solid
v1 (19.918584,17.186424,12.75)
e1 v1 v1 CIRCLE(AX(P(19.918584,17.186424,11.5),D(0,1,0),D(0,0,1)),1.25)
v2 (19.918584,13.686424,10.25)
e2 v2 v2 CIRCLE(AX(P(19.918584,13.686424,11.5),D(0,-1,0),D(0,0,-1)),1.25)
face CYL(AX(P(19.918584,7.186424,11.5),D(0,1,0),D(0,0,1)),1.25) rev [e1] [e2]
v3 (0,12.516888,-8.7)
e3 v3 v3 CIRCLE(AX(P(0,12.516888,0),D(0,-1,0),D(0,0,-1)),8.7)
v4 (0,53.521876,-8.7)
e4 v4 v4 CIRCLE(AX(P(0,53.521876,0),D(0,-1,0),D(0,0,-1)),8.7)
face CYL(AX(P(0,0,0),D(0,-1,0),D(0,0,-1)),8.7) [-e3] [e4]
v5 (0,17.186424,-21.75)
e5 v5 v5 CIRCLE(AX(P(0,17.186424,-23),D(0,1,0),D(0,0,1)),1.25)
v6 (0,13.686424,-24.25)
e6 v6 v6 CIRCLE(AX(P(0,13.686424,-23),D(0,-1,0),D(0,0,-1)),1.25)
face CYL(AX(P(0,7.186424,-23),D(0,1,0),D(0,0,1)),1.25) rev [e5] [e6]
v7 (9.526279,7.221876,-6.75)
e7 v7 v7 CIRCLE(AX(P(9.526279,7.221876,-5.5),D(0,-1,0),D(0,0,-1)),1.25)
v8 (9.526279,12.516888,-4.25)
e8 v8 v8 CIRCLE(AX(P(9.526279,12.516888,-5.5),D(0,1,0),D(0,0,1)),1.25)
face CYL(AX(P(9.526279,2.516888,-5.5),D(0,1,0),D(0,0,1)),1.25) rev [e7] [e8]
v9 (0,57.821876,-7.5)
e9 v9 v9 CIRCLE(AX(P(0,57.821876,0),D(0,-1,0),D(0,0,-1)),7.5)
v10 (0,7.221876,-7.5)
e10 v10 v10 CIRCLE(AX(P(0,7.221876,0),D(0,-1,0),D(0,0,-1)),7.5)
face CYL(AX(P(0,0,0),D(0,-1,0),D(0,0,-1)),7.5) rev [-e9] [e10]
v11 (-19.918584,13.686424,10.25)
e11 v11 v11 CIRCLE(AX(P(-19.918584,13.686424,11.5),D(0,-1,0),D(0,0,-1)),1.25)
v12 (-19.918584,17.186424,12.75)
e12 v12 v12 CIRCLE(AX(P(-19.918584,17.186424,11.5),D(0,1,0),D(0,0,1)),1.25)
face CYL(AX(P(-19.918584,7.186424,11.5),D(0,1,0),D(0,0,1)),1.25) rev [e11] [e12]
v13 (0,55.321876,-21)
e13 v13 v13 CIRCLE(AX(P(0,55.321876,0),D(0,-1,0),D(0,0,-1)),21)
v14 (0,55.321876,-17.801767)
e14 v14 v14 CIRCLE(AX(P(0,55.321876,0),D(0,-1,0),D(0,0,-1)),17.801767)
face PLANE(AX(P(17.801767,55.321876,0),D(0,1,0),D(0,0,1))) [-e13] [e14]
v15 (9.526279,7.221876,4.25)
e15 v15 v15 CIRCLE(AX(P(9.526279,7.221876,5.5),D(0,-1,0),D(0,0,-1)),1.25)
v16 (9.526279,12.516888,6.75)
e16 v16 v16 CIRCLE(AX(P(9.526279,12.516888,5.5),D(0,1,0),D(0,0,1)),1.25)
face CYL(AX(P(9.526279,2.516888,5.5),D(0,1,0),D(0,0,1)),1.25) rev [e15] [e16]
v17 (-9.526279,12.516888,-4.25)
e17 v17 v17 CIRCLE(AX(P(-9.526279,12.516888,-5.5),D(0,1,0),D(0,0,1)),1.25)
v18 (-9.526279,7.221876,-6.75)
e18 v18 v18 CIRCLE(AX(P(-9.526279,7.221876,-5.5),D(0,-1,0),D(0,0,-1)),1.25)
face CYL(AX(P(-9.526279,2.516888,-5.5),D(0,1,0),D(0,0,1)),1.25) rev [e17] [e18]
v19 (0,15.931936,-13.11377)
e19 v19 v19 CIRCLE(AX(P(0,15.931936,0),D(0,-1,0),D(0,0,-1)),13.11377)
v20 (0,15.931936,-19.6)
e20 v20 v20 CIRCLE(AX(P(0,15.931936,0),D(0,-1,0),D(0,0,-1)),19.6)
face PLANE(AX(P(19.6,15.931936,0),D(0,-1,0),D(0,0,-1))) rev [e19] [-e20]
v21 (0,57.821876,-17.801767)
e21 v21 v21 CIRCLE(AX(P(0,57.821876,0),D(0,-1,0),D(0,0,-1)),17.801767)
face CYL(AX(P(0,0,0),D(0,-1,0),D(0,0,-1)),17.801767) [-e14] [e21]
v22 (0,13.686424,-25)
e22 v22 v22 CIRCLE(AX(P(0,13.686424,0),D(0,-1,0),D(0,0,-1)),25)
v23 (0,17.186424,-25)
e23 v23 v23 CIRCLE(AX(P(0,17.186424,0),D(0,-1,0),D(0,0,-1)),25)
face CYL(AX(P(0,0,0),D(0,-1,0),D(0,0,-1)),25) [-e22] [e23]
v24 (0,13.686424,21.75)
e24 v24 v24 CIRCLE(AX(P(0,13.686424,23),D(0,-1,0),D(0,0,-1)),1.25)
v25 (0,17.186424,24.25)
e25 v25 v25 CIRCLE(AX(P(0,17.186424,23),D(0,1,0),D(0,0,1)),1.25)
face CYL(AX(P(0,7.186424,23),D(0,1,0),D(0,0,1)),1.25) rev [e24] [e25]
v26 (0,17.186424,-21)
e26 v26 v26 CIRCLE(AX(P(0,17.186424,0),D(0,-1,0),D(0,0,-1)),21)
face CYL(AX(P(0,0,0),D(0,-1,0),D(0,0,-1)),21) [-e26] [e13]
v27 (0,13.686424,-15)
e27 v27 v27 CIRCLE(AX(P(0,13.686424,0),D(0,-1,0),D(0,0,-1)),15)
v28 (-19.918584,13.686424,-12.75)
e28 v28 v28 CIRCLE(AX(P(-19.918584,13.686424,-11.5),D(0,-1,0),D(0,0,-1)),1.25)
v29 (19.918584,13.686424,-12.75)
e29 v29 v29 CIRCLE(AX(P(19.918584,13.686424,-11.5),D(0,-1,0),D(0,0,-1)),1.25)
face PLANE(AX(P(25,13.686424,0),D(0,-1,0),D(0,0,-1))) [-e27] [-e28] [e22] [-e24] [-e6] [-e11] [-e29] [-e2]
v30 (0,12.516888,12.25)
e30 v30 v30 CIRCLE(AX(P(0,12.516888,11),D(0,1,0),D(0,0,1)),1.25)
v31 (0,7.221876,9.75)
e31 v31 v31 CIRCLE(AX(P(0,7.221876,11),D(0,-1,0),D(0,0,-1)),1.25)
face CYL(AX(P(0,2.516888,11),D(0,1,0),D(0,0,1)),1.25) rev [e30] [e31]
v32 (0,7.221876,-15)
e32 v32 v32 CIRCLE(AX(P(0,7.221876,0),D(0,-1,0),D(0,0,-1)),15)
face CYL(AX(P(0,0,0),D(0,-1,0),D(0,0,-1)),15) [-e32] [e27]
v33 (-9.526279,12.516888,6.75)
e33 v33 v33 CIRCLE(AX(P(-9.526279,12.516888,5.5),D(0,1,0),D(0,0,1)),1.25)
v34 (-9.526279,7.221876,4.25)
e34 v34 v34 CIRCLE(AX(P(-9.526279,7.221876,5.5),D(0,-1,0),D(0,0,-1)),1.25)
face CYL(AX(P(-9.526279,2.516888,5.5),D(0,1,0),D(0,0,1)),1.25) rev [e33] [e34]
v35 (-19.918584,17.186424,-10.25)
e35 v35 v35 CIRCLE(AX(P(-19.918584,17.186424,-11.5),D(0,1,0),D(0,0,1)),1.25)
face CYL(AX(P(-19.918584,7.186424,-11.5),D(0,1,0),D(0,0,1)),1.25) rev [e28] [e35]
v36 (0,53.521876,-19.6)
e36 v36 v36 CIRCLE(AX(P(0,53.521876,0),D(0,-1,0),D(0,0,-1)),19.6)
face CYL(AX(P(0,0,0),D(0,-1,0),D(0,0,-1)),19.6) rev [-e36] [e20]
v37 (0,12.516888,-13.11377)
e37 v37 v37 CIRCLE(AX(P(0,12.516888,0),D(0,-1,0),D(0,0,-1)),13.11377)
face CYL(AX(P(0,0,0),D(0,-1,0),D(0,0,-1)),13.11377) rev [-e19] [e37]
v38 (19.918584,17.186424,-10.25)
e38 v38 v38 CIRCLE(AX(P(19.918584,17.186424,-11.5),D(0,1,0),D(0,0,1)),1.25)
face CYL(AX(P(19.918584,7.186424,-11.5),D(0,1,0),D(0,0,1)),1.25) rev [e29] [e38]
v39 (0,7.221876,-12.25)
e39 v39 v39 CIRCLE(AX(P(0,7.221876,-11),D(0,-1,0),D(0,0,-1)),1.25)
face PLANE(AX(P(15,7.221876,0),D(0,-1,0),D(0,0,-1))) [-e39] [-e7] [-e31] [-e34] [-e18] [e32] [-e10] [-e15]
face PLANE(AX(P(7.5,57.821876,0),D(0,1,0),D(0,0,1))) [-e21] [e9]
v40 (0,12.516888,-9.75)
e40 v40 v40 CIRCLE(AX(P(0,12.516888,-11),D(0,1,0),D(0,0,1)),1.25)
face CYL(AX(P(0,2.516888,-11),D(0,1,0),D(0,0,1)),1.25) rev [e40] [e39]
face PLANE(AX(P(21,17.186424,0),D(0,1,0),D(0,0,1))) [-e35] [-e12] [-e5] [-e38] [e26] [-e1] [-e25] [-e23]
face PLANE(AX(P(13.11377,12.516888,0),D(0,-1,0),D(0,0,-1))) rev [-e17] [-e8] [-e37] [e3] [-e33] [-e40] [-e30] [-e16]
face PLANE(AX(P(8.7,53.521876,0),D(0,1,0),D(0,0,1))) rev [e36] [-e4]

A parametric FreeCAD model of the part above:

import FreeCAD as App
import Part
import Sketcher
Q = App.Units.Quantity

doc = App.newDocument("Part")
params = doc.addObject("Spreadsheet::Sheet", "Params")
for row, (alias, value) in enumerate([
    ("sketch1_width", "10 mm"),
    ("sketch1_width2", "4 mm"),
    ("sketch1_width3", "7.5 mm"),
    ("sketch1_width4", "10.9 mm"),
    ("sketch1_height", "50.6 mm"),
    ("revolution_angle", "360 deg"),
    ("sketch2_diameter", "2.5 mm"),
    ("pocket1_length", "10 mm"),
    ("sketch3_diameter", "2.5 mm"),
    ("pocket2_length", "10 mm"),
], start=1):
    params.set(f"A{row}", alias)
    params.set(f"B{row}", "=" + value)
    params.setAlias(f"B{row}", alias)

body = doc.addObject("PartDesign::Body", "Body")

# Sketch on XY plane
sketch1 = body.newObject("Sketcher::SketchObject", "Sketch")
sketch1.AttachmentSupport = (doc.getObject("XY_Plane"), [""])
sketch1.MapMode = "FlatFace"
sketch1.addGeometry([
    Part.LineSegment(App.Vector(7.5, 57.8, 0), App.Vector(7.5, 7.2, 0)),  # 0
    Part.LineSegment(App.Vector(7.5, 7.2, 0), App.Vector(15, 7.2, 0)),  # 1
    Part.LineSegment(App.Vector(15, 7.2, 0), App.Vector(15, 13.7, 0)),  # 2
    Part.LineSegment(App.Vector(15, 13.7, 0), App.Vector(25, 13.7, 0)),  # 3
    Part.LineSegment(App.Vector(25, 13.7, 0), App.Vector(25, 17.2, 0)),  # 4
    Part.LineSegment(App.Vector(25, 17.2, 0), App.Vector(21, 17.2, 0)),  # 5
    Part.LineSegment(App.Vector(21, 17.2, 0), App.Vector(21, 55.3, 0)),  # 6
    Part.LineSegment(App.Vector(21, 55.3, 0), App.Vector(17.8, 55.3, 0)),  # 7
    Part.LineSegment(App.Vector(17.8, 55.3, 0), App.Vector(17.8, 57.8, 0)),  # 8
    Part.LineSegment(App.Vector(17.8, 57.8, 0), App.Vector(7.5, 57.8, 0)),  # 9
    Part.LineSegment(App.Vector(8.7, 12.5, 0), App.Vector(8.7, 53.5, 0)),  # 10
    Part.LineSegment(App.Vector(8.7, 53.5, 0), App.Vector(19.6, 53.5, 0)),  # 11
    Part.LineSegment(App.Vector(19.6, 53.5, 0), App.Vector(19.6, 15.9, 0)),  # 12
    Part.LineSegment(App.Vector(19.6, 15.9, 0), App.Vector(13.1, 15.9, 0)),  # 13
    Part.LineSegment(App.Vector(13.1, 15.9, 0), App.Vector(13.1, 12.5, 0)),  # 14
    Part.LineSegment(App.Vector(13.1, 12.5, 0), App.Vector(8.7, 12.5, 0)),  # 15
], False)
sketch1.addConstraint([
    Sketcher.Constraint("Coincident", 0, 2, 1, 1),
    Sketcher.Constraint("Coincident", 1, 2, 2, 1),
    Sketcher.Constraint("Coincident", 2, 2, 3, 1),
    Sketcher.Constraint("Coincident", 3, 2, 4, 1),
    Sketcher.Constraint("Coincident", 4, 2, 5, 1),
    Sketcher.Constraint("Coincident", 5, 2, 6, 1),
    Sketcher.Constraint("Coincident", 6, 2, 7, 1),
    Sketcher.Constraint("Coincident", 7, 2, 8, 1),
    Sketcher.Constraint("Coincident", 8, 2, 9, 1),
    Sketcher.Constraint("Coincident", 9, 2, 0, 1),
    Sketcher.Constraint("Coincident", 10, 2, 11, 1),
    Sketcher.Constraint("Coincident", 11, 2, 12, 1),
    Sketcher.Constraint("Coincident", 12, 2, 13, 1),
    Sketcher.Constraint("Coincident", 13, 2, 14, 1),
    Sketcher.Constraint("Coincident", 14, 2, 15, 1),
    Sketcher.Constraint("Coincident", 15, 2, 10, 1),
    Sketcher.Constraint("Vertical", 0),
    Sketcher.Constraint("Horizontal", 1),
    Sketcher.Constraint("Vertical", 2),
    Sketcher.Constraint("Horizontal", 3),
    Sketcher.Constraint("Vertical", 4),
    Sketcher.Constraint("Horizontal", 5),
    Sketcher.Constraint("Vertical", 6),
    Sketcher.Constraint("Horizontal", 7),
    Sketcher.Constraint("Vertical", 8),
    Sketcher.Constraint("Horizontal", 9),
    Sketcher.Constraint("Vertical", 10),
    Sketcher.Constraint("Horizontal", 11),
    Sketcher.Constraint("Vertical", 12),
    Sketcher.Constraint("Horizontal", 13),
    Sketcher.Constraint("Vertical", 14),
    Sketcher.Constraint("Horizontal", 15),
    Sketcher.Constraint("DistanceX", 3, 1, 3, 2, Q("10 mm")),
    Sketcher.Constraint("DistanceX", 5, 2, 5, 1, Q("4 mm")),
    Sketcher.Constraint("DistanceX", 1, 1, 1, 2, Q("7.5 mm")),
    Sketcher.Constraint("DistanceX", 11, 1, 11, 2, Q("10.9 mm")),
    Sketcher.Constraint("DistanceY", 0, 2, 0, 1, Q("50.6 mm")),
    Sketcher.Constraint("DistanceY", 4, 1, 4, 2, Q("3.5 mm")),
    Sketcher.Constraint("DistanceY", 8, 1, 8, 2, Q("2.5 mm")),
    Sketcher.Constraint("DistanceX", -1, 1, 1, 2, Q("15 mm")),
    Sketcher.Constraint("DistanceX", -1, 1, 10, 2, Q("8.7 mm")),
    Sketcher.Constraint("DistanceY", 10, 2, 9, 2, Q("4.3 mm")),
    Sketcher.Constraint("DistanceX", 13, 2, 13, 1, Q("6.48623 mm")),
    Sketcher.Constraint("DistanceY", 10, 1, 10, 2, Q("41.004988 mm")),
    Sketcher.Constraint("DistanceY", 12, 2, 12, 1, Q("37.589941 mm")),
    Sketcher.Constraint("DistanceX", 7, 2, 7, 1, Q("3.198233 mm")),
    Sketcher.Constraint("DistanceY", 2, 1, 2, 2, Q("6.464548 mm")),
    Sketcher.Constraint("DistanceY", -1, 1, 0, 2, Q("7.221876 mm")),
])
sketch1.setExpression("Constraints[32]", "Params.sketch1_width")
sketch1.setExpression("Constraints[33]", "Params.sketch1_width2")
sketch1.setExpression("Constraints[34]", "Params.sketch1_width3")
sketch1.setExpression("Constraints[35]", "Params.sketch1_width4")
sketch1.setExpression("Constraints[36]", "Params.sketch1_height")
revolution = body.newObject("PartDesign::Revolution", "Revolution")
revolution.Profile = sketch1
revolution.ReferenceAxis = (sketch1, ["V_Axis"])
revolution.setExpression("Angle", "Params.revolution_angle")

# Sketch on XZ plane
sketch2 = body.newObject("Sketcher::SketchObject", "Sketch001")
sketch2.AttachmentSupport = (doc.getObject("XZ_Plane"), [""])
sketch2.MapMode = "FlatFace"
sketch2.AttachmentOffset = App.Placement(App.Vector(0, 0, -17.186424), App.Rotation())
sketch2.addGeometry([
    Part.Circle(App.Vector(0, -23, 0), App.Vector(0, 0, 1), 1.2),  # 0
    Part.Circle(App.Vector(19.9, -11.5, 0), App.Vector(0, 0, 1), 1.2),  # 1
    Part.Circle(App.Vector(19.9, 11.5, 0), App.Vector(0, 0, 1), 1.2),  # 2
    Part.Circle(App.Vector(0, 23, 0), App.Vector(0, 0, 1), 1.2),  # 3
    Part.Circle(App.Vector(-19.9, 11.5, 0), App.Vector(0, 0, 1), 1.2),  # 4
    Part.Circle(App.Vector(-19.9, -11.5, 0), App.Vector(0, 0, 1), 1.2),  # 5
], False)
sketch2.addConstraint([
    Sketcher.Constraint("Equal", 0, 1),
    Sketcher.Constraint("Equal", 1, 2),
    Sketcher.Constraint("Equal", 2, 3),
    Sketcher.Constraint("Equal", 3, 4),
    Sketcher.Constraint("Equal", 4, 5),
    Sketcher.Constraint("Symmetric", 0, 3, 3, 3, -1, 1),
    Sketcher.Constraint("Symmetric", 1, 3, 4, 3, -1, 1),
    Sketcher.Constraint("Symmetric", 2, 3, 5, 3, -1, 1),
    Sketcher.Constraint("Symmetric", 2, 3, 4, 3, -2),
    Sketcher.Constraint("PointOnObject", 0, 3, -2),
    Sketcher.Constraint("Diameter", 0, Q("2.5 mm")),
    Sketcher.Constraint("DistanceY", 0, 3, -1, 1, Q("23 mm")),
    Sketcher.Constraint("DistanceY", 1, 3, 2, 3, Q("23 mm")),
    Sketcher.Constraint("DistanceX", 4, 3, 2, 3, Q("39.837169 mm")),
])
sketch2.setExpression("Constraints[10]", "Params.sketch2_diameter")
pocket1 = body.newObject("PartDesign::Pocket", "Pocket")
pocket1.Profile = sketch2
pocket1.setExpression("Length", "Params.pocket1_length")
pocket1.Reversed = True

# Sketch on XZ plane
sketch3 = body.newObject("Sketcher::SketchObject", "Sketch002")
sketch3.AttachmentSupport = (doc.getObject("XZ_Plane"), [""])
sketch3.MapMode = "FlatFace"
sketch3.AttachmentOffset = App.Placement(App.Vector(0, 0, -12.516888), App.Rotation())
sketch3.addGeometry([
    Part.Circle(App.Vector(0, -11, 0), App.Vector(0, 0, 1), 1.2),  # 0
    Part.Circle(App.Vector(9.5, -5.5, 0), App.Vector(0, 0, 1), 1.2),  # 1
    Part.Circle(App.Vector(9.5, 5.5, 0), App.Vector(0, 0, 1), 1.2),  # 2
    Part.Circle(App.Vector(0, 11, 0), App.Vector(0, 0, 1), 1.2),  # 3
    Part.Circle(App.Vector(-9.5, 5.5, 0), App.Vector(0, 0, 1), 1.2),  # 4
    Part.Circle(App.Vector(-9.5, -5.5, 0), App.Vector(0, 0, 1), 1.2),  # 5
], False)
sketch3.addConstraint([
    Sketcher.Constraint("Equal", 0, 1),
    Sketcher.Constraint("Equal", 1, 2),
    Sketcher.Constraint("Equal", 2, 3),
    Sketcher.Constraint("Equal", 3, 4),
    Sketcher.Constraint("Equal", 4, 5),
    Sketcher.Constraint("Symmetric", 0, 3, 3, 3, -1, 1),
    Sketcher.Constraint("Symmetric", 1, 3, 4, 3, -1, 1),
    Sketcher.Constraint("Symmetric", 2, 3, 5, 3, -1, 1),
    Sketcher.Constraint("Symmetric", 2, 3, 4, 3, -2),
    Sketcher.Constraint("PointOnObject", 0, 3, -2),
    Sketcher.Constraint("Diameter", 0, Q("2.5 mm")),
    Sketcher.Constraint("DistanceY", 0, 3, -1, 1, Q("11 mm")),
    Sketcher.Constraint("DistanceY", 1, 3, 2, 3, Q("11 mm")),
    Sketcher.Constraint("DistanceX", -1, 1, 1, 3, Q("9.526279 mm")),
])
sketch3.setExpression("Constraints[10]", "Params.sketch3_diameter")
pocket2 = body.newObject("PartDesign::Pocket", "Pocket001")
pocket2.Profile = sketch3
pocket2.setExpression("Length", "Params.pocket2_length")
pocket2.Reversed = True

doc.recompute()
